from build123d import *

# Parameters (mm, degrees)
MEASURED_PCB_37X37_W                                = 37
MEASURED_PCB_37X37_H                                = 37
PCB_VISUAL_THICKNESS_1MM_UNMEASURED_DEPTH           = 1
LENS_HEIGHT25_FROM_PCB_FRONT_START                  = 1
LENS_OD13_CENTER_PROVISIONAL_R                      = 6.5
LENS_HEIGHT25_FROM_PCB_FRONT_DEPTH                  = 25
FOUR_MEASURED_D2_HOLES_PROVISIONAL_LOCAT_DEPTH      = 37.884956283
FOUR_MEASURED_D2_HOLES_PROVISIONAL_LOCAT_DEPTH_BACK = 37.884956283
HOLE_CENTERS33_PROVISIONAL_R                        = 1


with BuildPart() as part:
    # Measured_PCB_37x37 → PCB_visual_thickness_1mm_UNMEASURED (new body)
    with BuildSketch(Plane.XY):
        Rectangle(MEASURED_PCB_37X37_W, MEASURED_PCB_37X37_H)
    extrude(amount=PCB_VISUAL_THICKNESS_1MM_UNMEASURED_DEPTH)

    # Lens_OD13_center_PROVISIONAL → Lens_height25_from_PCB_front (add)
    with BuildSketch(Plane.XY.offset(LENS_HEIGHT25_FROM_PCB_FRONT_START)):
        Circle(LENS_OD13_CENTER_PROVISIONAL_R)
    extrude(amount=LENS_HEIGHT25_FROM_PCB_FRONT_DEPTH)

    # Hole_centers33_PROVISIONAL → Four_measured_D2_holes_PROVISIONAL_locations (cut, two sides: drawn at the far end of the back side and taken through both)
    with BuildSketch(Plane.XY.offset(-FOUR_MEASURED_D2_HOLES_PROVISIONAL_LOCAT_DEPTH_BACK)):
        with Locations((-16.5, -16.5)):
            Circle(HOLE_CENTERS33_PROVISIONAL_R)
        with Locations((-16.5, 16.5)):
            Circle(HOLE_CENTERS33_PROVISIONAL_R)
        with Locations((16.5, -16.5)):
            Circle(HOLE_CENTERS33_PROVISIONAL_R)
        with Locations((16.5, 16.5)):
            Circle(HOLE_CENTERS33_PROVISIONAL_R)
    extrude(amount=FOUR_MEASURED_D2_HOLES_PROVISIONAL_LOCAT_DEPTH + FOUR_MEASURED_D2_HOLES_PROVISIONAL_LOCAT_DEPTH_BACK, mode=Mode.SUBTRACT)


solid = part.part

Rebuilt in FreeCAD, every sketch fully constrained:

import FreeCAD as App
import Part
import Sketcher
from FreeCAD import Vector


def add_polygon(sketch, points):
    """Adds a closed chain of lines whose ends are joined by coincident constraints."""
    first, n = sketch.GeometryCount, len(points)
    for a, b in zip(points, points[1:] + points[:1]):
        sketch.addGeometry(Part.LineSegment(App.Vector(*a, 0), App.Vector(*b, 0)), False)
    for i in range(n):
        sketch.addConstraint(Sketcher.Constraint("Coincident", first + i, 2, first + (i + 1) % n, 1))

doc = App.newDocument("Part")
body = doc.addObject("PartDesign::Body", "Body")

sketch1 = doc.addObject("Sketcher::SketchObject", "Sketch")
body.addObject(sketch1)
sketch1.AttachmentSupport = (doc.XY_Plane, [""])
sketch1.MapMode = "FlatFace"
add_polygon(sketch1, [(-18.5, 18.5), (-18.5, -18.5), (18.5, -18.5), (18.5, 18.5)])
sketch1.addConstraint(Sketcher.Constraint("Vertical", 0))
sketch1.addConstraint(Sketcher.Constraint("Horizontal", 1))
sketch1.addConstraint(Sketcher.Constraint("Vertical", 2))
sketch1.addConstraint(Sketcher.Constraint("Horizontal", 3))
sketch1.addConstraint(Sketcher.Constraint("Symmetric", 0, 2, 2, 2, -1, 1))
sketch1.addConstraint(Sketcher.Constraint("Equal", 3, 0))
sketch1.addConstraint(Sketcher.Constraint("DistanceX", 1, 1, 1, 2, 37.0))
pad1 = doc.addObject("PartDesign::Pad", "Pad")
body.addObject(pad1)
pad1.Profile = sketch1
pad1.Length = 1

sketch2 = doc.addObject("Sketcher::SketchObject", "Sketch001")
body.addObject(sketch2)
sketch2.AttachmentSupport = (doc.XY_Plane, [""])
sketch2.MapMode = "FlatFace"
sketch2.AttachmentOffset = App.Placement(Vector(0, 0, 1), App.Rotation())
sketch2.addGeometry(Part.Circle(Vector(0, 0, 0), Vector(0, 0, 1), 6.5), False)
sketch2.addConstraint(Sketcher.Constraint("Coincident", 0, 3, -1, 1))
sketch2.addConstraint(Sketcher.Constraint("Diameter", 0, 13.0))
pad2 = doc.addObject("PartDesign::Pad", "Pad001")
body.addObject(pad2)
pad2.Profile = sketch2
pad2.Length = 25

sketch3 = doc.addObject("Sketcher::SketchObject", "Sketch002")
body.addObject(sketch3)
sketch3.AttachmentSupport = (doc.XY_Plane, [""])
sketch3.MapMode = "FlatFace"
sketch3.addGeometry(Part.Circle(Vector(-16.5, -16.5, 0), Vector(0, 0, 1), 1), False)
sketch3.addGeometry(Part.Circle(Vector(-16.5, 16.5, 0), Vector(0, 0, 1), 1), False)
sketch3.addGeometry(Part.Circle(Vector(16.5, -16.5, 0), Vector(0, 0, 1), 1), False)
sketch3.addGeometry(Part.Circle(Vector(16.5, 16.5, 0), Vector(0, 0, 1), 1), False)
sketch3.addConstraint(Sketcher.Constraint("Equal", 0, 1))
sketch3.addConstraint(Sketcher.Constraint("Equal", 1, 2))
sketch3.addConstraint(Sketcher.Constraint("Equal", 2, 3))
sketch3.addConstraint(Sketcher.Constraint("Symmetric", 1, 3, 2, 3, -1, 1))
sketch3.addConstraint(Sketcher.Constraint("Symmetric", 0, 3, 3, 3, -1, 1))
sketch3.addConstraint(Sketcher.Constraint("Symmetric", 0, 3, 2, 3, -2))
sketch3.addConstraint(Sketcher.Constraint("Diameter", 0, 2.0))
sketch3.addConstraint(Sketcher.Constraint("DistanceY", 0, 3, 1, 3, 33.0))
sketch3.addConstraint(Sketcher.Constraint("DistanceX", 0, 3, 2, 3, 33.0))
pocket1 = doc.addObject("PartDesign::Pocket", "Pocket")
body.addObject(pocket1)
pocket1.Profile = sketch3
pocket1.Type = "ThroughAll"
pocket1.Midplane = True

doc.recompute()
